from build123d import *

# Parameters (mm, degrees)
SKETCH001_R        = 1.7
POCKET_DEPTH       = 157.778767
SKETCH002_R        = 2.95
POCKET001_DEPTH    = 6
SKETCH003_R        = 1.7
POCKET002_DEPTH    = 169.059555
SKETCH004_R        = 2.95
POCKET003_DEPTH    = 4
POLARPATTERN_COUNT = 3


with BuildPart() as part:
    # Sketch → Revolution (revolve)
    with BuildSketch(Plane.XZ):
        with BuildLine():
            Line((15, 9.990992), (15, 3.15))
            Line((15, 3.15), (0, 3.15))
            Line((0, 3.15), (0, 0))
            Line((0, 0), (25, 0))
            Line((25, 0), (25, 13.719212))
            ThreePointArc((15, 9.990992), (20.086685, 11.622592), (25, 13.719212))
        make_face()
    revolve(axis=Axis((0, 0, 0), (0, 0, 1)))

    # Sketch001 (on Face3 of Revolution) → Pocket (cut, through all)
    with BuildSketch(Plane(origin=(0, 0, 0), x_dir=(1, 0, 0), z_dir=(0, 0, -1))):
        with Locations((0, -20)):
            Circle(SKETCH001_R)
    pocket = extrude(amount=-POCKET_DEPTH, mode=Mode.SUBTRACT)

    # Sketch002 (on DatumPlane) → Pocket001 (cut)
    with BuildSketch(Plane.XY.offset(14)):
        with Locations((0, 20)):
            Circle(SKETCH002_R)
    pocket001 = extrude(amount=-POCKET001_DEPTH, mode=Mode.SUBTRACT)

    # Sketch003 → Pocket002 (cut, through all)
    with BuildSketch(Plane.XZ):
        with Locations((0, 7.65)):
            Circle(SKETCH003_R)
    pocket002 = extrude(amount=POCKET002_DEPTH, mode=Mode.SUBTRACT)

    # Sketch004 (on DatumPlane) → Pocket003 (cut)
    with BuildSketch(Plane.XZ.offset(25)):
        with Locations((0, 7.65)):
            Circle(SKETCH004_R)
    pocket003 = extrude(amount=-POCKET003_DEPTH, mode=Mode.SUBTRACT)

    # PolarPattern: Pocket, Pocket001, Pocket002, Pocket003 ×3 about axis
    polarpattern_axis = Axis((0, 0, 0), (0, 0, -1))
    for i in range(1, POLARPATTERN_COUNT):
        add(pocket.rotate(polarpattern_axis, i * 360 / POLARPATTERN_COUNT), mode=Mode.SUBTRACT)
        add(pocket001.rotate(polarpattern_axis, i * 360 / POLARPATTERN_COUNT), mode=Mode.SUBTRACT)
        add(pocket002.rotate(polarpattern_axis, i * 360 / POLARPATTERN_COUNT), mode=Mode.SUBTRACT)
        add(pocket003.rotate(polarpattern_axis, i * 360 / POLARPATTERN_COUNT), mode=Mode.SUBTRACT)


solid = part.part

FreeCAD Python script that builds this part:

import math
import FreeCAD as App
import Part
import Sketcher

V = App.Vector
Q = App.Units.Quantity

doc = App.newDocument("Part")
body = doc.addObject("PartDesign::Body", "Body")

sketch1 = body.newObject("Sketcher::SketchObject", "Sketch")
sketch1.AttachmentSupport = (doc.getObject("XZ_Plane"), [""])
sketch1.MapMode = "FlatFace"
sketch1.addGeometry([
    Part.LineSegment(V(15, 10, 0), V(15, 3.1, 0)),
    Part.LineSegment(V(15, 3.1, 0), V(0, 3.1, 0)),
    Part.LineSegment(V(0, 3.1, 0), V(0, 0, 0)),
    Part.LineSegment(V(0, 0, 0), V(25, 0, 0)),
    Part.LineSegment(V(25, 0, 0), V(25, 13.7, 0)),
    Part.ArcOfCircle(Part.Circle(V(0, 65.5, 0), V(0, 0, 1), 57.5), math.radians(-74.88), math.radians(-64.23)),
], False)
sketch1.addConstraint([
    Sketcher.Constraint("Coincident", 0, 2, 1, 1),
    Sketcher.Constraint("Coincident", 1, 2, 2, 1),
    Sketcher.Constraint("Coincident", 2, 2, 3, 1),
    Sketcher.Constraint("Coincident", 3, 2, 4, 1),
    Sketcher.Constraint("Coincident", 4, 2, 5, 2),
    Sketcher.Constraint("Coincident", 5, 1, 0, 1),
    Sketcher.Constraint("Vertical", 0),
    Sketcher.Constraint("Horizontal", 1),
    Sketcher.Constraint("Vertical", 2),
    Sketcher.Constraint("Horizontal", 3),
    Sketcher.Constraint("Vertical", 4),
    Sketcher.Constraint("Coincident", 2, 2, -1, 1),
    Sketcher.Constraint("DistanceX", 1, 2, 1, 1, Q("15 mm")),
    Sketcher.Constraint("DistanceX", 3, 1, 3, 2, Q("25 mm")),
    Sketcher.Constraint("DistanceY", 2, 2, 2, 1, Q("3.15 mm")),
    Sketcher.Constraint("Radius", 5, Q("57.499961 mm")),
    Sketcher.Constraint("DistanceY", 0, 2, 0, 1, Q("6.840992 mm")),
    Sketcher.Constraint("DistanceY", 4, 1, 4, 2, Q("13.719212 mm")),
])
revolution = body.newObject("PartDesign::Revolution", "Revolution")
revolution.Profile = sketch1
revolution.ReferenceAxis = (sketch1, ["V_Axis"])
revolution.Angle = 360

sketch2 = body.newObject("Sketcher::SketchObject", "Sketch001")
sketch2.AttachmentSupport = (doc.getObject("XY_Plane"), [""])
sketch2.MapMode = "FlatFace"
sketch2.addGeometry(Part.Circle(V(0, 20, 0), V(0, 0, 1), 1.7), False)
sketch2.addConstraint([
    Sketcher.Constraint("PointOnObject", 0, 3, -2),
    Sketcher.Constraint("Diameter", 0, Q("3.4 mm")),
    Sketcher.Constraint("DistanceY", -1, 1, 0, 3, Q("20 mm")),
])
pocket1 = body.newObject("PartDesign::Pocket", "Pocket")
pocket1.Profile = sketch2
pocket1.Type = "ThroughAll"
pocket1.Reversed = True

sketch3 = body.newObject("Sketcher::SketchObject", "Sketch002")
sketch3.AttachmentSupport = (doc.getObject("XY_Plane"), [""])
sketch3.MapMode = "FlatFace"
sketch3.AttachmentOffset = App.Placement(V(0, 0, 14), App.Rotation())
sketch3.addGeometry(Part.Circle(V(0, 20, 0), V(0, 0, 1), 3), False)
sketch3.addConstraint([
    Sketcher.Constraint("PointOnObject", 0, 3, -2),
    Sketcher.Constraint("Diameter", 0, Q("5.9 mm")),
    Sketcher.Constraint("DistanceY", -1, 1, 0, 3, Q("20 mm")),
])
pocket2 = body.newObject("PartDesign::Pocket", "Pocket001")
pocket2.Profile = sketch3
pocket2.Length = 6

sketch4 = body.newObject("Sketcher::SketchObject", "Sketch003")
sketch4.AttachmentSupport = (doc.getObject("XZ_Plane"), [""])
sketch4.MapMode = "FlatFace"
sketch4.addGeometry(Part.Circle(V(0, 7.7, 0), V(0, 0, 1), 1.7), False)
sketch4.addConstraint([
    Sketcher.Constraint("PointOnObject", 0, 3, -2),
    Sketcher.Constraint("Diameter", 0, Q("3.4 mm")),
    Sketcher.Constraint("DistanceY", -1, 1, 0, 3, Q("7.65 mm")),
])
pocket3 = body.newObject("PartDesign::Pocket", "Pocket002")
pocket3.Profile = sketch4
pocket3.Type = "ThroughAll"
pocket3.Reversed = True

sketch5 = body.newObject("Sketcher::SketchObject", "Sketch004")
sketch5.AttachmentSupport = (doc.getObject("XZ_Plane"), [""])
sketch5.MapMode = "FlatFace"
sketch5.AttachmentOffset = App.Placement(V(0, 0, 25), App.Rotation())
sketch5.addGeometry(Part.Circle(V(0, 7.7, 0), V(0, 0, 1), 3), False)
sketch5.addConstraint([
    Sketcher.Constraint("PointOnObject", 0, 3, -2),
    Sketcher.Constraint("Diameter", 0, Q("5.9 mm")),
    Sketcher.Constraint("DistanceY", -1, 1, 0, 3, Q("7.65 mm")),
])
pocket4 = body.newObject("PartDesign::Pocket", "Pocket003")
pocket4.Profile = sketch5
pocket4.Length = 4
doc.recompute()

polarpattern = body.newObject("PartDesign::PolarPattern", "PolarPattern")
polarpattern.Originals = [pocket1, pocket2, pocket3, pocket4]
polarpattern.Axis = (doc.getObject("Z_Axis"), [""])
polarpattern.Angle = 360
polarpattern.Occurrences = 3
body.Tip = polarpattern

doc.recompute()
